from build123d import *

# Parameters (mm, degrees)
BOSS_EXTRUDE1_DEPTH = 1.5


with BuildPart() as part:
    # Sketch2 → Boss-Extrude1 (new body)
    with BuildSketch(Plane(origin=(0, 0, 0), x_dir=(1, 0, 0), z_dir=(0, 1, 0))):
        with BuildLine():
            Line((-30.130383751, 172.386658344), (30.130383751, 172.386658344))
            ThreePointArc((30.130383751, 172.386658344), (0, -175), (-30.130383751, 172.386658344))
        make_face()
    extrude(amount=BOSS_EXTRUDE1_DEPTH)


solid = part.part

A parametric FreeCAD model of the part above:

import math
import FreeCAD as App
import Part
import Sketcher
from FreeCAD import Vector

doc = App.newDocument("Part")
body = doc.addObject("PartDesign::Body", "Body")

# Sketch on XZ plane
sketch1 = body.newObject("Sketcher::SketchObject", "Sketch")
sketch1.AttachmentSupport = (doc.getObject("XZ_Plane"), [""])
sketch1.MapMode = "FlatFace"
sketch1.addGeometry([
    Part.LineSegment(Vector(30, -172, 0), Vector(-30, -172, 0)),
    Part.ArcOfCircle(Part.Circle(Vector(0, 0, 0), Vector(0, 0, 1), 175), math.radians(-80), math.radians(260)),
], False)
sketch1.addConstraint([
    Sketcher.Constraint("Coincident", 0, 1, 1, 1),
    Sketcher.Constraint("Coincident", 1, 2, 0, 2),
    Sketcher.Constraint("Horizontal", 0),
    Sketcher.Constraint("Coincident", 1, 3, -1, 1),
    Sketcher.Constraint("Radius", 1, 175.0),
    Sketcher.Constraint("DistanceX", 0, 2, 0, 1, 60.260768),
])
pad1 = body.newObject("PartDesign::Pad", "Pad")
pad1.Profile = sketch1
pad1.Length = 1.5
pad1.Reversed = True

doc.recompute()
